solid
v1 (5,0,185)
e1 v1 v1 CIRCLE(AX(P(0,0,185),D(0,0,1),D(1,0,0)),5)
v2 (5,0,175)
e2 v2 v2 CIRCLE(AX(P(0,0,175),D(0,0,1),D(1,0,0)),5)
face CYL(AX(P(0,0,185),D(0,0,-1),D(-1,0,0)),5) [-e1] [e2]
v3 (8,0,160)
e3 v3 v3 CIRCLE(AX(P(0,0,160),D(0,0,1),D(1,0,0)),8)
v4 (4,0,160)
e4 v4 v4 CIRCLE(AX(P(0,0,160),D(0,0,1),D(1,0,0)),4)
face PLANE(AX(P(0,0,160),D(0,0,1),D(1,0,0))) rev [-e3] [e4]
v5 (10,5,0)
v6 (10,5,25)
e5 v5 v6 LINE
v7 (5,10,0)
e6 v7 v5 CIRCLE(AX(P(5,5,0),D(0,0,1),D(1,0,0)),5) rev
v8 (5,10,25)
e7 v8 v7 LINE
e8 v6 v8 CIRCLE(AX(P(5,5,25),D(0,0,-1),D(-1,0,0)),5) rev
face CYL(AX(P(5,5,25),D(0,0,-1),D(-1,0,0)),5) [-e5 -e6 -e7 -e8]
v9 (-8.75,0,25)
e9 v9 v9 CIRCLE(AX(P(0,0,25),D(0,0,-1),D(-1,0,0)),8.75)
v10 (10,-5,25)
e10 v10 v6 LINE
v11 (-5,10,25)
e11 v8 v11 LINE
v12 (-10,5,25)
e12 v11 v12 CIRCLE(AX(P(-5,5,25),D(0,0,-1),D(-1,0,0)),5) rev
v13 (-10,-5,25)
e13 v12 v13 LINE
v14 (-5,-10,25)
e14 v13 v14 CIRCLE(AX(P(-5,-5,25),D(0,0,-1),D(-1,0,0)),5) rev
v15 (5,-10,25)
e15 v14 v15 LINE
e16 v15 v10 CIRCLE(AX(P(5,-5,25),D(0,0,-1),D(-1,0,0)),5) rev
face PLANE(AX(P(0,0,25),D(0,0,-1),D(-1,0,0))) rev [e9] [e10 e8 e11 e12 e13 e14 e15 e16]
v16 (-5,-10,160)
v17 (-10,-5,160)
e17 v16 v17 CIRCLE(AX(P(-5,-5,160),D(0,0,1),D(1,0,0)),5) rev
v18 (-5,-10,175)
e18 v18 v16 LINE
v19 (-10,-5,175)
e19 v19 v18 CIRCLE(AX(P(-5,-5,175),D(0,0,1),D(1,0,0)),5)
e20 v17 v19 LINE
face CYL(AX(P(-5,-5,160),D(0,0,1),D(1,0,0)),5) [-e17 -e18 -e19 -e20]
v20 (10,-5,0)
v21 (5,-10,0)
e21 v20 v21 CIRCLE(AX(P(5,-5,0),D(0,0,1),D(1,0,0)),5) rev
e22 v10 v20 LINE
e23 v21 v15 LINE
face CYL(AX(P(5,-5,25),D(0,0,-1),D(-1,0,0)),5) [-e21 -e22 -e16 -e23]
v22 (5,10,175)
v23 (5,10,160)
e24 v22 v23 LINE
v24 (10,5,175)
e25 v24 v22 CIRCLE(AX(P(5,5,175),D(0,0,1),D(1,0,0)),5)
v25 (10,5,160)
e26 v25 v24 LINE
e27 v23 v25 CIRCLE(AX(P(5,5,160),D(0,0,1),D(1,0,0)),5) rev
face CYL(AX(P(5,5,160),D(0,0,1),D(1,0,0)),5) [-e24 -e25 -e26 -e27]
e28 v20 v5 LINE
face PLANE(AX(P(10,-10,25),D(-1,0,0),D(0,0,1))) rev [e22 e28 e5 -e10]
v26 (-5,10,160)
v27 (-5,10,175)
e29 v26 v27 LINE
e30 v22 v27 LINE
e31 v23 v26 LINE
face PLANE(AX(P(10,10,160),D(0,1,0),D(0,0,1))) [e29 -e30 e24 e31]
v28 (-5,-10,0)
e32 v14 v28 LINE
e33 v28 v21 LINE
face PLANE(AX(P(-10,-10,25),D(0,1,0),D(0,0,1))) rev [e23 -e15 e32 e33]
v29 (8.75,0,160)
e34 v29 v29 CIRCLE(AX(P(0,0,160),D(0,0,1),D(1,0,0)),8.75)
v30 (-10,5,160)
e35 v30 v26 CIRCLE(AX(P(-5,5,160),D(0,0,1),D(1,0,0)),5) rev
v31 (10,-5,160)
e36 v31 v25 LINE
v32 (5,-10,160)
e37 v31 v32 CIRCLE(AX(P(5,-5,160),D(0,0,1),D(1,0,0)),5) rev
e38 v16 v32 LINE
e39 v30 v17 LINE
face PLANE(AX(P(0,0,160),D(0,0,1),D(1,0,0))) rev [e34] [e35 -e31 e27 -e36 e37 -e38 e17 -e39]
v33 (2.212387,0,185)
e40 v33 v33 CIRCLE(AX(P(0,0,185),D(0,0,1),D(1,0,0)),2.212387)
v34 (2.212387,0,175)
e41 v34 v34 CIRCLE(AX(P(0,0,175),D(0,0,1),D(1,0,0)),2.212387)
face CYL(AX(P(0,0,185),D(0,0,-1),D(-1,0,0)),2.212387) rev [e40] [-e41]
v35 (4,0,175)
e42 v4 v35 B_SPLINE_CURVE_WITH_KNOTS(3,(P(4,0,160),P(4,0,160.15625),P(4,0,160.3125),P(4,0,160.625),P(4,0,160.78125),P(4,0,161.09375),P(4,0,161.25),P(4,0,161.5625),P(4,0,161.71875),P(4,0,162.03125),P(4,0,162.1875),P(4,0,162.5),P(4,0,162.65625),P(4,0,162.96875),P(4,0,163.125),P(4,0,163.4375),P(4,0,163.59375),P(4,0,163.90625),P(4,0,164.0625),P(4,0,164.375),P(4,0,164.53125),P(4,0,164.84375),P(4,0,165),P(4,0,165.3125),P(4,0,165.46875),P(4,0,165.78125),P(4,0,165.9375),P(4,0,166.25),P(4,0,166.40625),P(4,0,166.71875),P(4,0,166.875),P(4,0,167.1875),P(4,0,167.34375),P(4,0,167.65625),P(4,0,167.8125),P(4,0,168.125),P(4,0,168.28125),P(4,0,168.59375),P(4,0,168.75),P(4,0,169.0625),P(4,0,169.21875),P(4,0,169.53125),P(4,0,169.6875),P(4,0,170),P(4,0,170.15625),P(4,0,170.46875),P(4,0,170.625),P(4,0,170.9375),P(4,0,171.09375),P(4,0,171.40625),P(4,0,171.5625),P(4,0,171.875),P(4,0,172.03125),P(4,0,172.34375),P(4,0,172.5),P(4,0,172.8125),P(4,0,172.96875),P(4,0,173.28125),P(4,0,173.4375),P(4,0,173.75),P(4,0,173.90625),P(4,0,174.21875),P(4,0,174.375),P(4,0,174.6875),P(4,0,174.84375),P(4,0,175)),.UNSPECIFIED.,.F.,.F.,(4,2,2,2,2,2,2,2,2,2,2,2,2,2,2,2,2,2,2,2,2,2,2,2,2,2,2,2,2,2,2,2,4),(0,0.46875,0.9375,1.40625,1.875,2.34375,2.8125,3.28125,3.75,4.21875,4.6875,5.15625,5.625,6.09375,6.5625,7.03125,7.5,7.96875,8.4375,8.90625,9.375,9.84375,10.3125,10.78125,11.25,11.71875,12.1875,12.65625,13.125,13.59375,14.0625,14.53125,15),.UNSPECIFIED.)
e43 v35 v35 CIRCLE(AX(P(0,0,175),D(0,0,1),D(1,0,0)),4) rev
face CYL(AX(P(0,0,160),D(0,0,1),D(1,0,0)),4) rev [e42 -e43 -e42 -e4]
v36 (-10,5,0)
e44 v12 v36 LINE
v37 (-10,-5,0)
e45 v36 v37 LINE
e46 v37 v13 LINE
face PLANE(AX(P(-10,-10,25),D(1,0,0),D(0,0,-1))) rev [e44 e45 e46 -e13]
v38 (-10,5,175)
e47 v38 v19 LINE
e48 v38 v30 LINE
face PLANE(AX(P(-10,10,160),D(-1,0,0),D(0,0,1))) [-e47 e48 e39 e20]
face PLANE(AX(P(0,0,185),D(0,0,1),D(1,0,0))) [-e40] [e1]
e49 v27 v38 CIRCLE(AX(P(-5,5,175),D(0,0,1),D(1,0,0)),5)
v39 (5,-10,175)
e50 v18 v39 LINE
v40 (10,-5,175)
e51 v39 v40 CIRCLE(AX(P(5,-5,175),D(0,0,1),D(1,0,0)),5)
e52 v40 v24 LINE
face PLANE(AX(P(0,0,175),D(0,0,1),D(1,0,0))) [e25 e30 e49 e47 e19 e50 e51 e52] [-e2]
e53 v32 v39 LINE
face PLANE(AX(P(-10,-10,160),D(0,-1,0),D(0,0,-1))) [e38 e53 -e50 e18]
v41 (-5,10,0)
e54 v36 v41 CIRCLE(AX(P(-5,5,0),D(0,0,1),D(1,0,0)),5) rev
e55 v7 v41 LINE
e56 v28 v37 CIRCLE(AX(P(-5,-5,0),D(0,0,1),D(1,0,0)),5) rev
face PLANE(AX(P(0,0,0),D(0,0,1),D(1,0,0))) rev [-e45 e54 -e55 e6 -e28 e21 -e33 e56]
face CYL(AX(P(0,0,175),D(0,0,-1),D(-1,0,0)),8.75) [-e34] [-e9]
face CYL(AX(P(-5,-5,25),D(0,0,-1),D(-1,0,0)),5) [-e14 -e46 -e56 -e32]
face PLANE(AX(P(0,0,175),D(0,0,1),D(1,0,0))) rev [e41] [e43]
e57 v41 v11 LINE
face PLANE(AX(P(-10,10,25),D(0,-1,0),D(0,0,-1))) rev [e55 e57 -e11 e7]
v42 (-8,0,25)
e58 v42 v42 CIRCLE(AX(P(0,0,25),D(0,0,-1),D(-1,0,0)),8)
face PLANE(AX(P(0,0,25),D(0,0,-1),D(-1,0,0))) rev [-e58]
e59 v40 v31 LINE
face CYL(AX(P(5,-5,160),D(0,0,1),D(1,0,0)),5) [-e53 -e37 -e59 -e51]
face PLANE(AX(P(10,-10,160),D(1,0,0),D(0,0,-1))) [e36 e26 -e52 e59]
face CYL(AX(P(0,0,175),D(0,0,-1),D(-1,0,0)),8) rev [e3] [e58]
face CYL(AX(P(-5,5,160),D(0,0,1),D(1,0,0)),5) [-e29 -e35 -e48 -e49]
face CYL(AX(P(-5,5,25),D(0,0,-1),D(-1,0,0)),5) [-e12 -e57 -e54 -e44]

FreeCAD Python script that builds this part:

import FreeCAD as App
import Part
import Sketcher


def edges_at(feature, points):
    """Names of the edges that pass closest to the given points."""
    edges = feature.Shape.Edges
    near = lambda p: min(range(len(edges)), key=lambda i: edges[i].distToShape(Part.Vertex(*p))[0])
    return sorted({f"Edge{near(p) + 1}" for p in points})

doc = App.newDocument("Part")
body = doc.addObject("PartDesign::Body", "Body")

sketch1 = body.newObject("Sketcher::SketchObject", "Sketch")
sketch1.AttachmentSupport = (doc.getObject("XY_Plane"), [""])
sketch1.MapMode = "FlatFace"
sketch1.addGeometry(Part.Circle(App.Vector(0, 0, 0), App.Vector(0, 0, 1), 9), False)
sketch1.addGeometry(Part.Circle(App.Vector(0, 0, 0), App.Vector(0, 0, 1), 8), False)
sketch1.addConstraint(Sketcher.Constraint("Coincident", 0, 3, -1, 1))
sketch1.addConstraint(Sketcher.Constraint("Coincident", 1, 3, -1, 1))
sketch1.addConstraint(Sketcher.Constraint("Diameter", 1, 16.0))
sketch1.addConstraint(Sketcher.Constraint("Diameter", 0, 17.5))
pad1 = body.newObject("PartDesign::Pad", "Pad")
pad1.Profile = sketch1
pad1.Length = 175

sketch2 = body.newObject("Sketcher::SketchObject", "Sketch001")
sketch2.AttachmentSupport = (doc.getObject("XY_Plane"), [""])
sketch2.MapMode = "FlatFace"
sketch2.addGeometry(Part.LineSegment(App.Vector(-10, 10, 0), App.Vector(-10, -10, 0)), False)
sketch2.addGeometry(Part.LineSegment(App.Vector(-10, -10, 0), App.Vector(10, -10, 0)), False)
sketch2.addGeometry(Part.LineSegment(App.Vector(10, -10, 0), App.Vector(10, 10, 0)), False)
sketch2.addGeometry(Part.LineSegment(App.Vector(10, 10, 0), App.Vector(-10, 10, 0)), False)
sketch2.addConstraint(Sketcher.Constraint("Coincident", 0, 2, 1, 1))
sketch2.addConstraint(Sketcher.Constraint("Coincident", 1, 2, 2, 1))
sketch2.addConstraint(Sketcher.Constraint("Coincident", 2, 2, 3, 1))
sketch2.addConstraint(Sketcher.Constraint("Coincident", 3, 2, 0, 1))
sketch2.addConstraint(Sketcher.Constraint("Vertical", 0))
sketch2.addConstraint(Sketcher.Constraint("Horizontal", 1))
sketch2.addConstraint(Sketcher.Constraint("Vertical", 2))
sketch2.addConstraint(Sketcher.Constraint("Horizontal", 3))
sketch2.addConstraint(Sketcher.Constraint("Symmetric", 0, 2, 2, 2, -1, 1))
sketch2.addConstraint(Sketcher.Constraint("Equal", 3, 0))
sketch2.addConstraint(Sketcher.Constraint("DistanceX", 1, 1, 1, 2, 20.0))
pad2 = body.newObject("PartDesign::Pad", "Pad001")
pad2.Profile = sketch2
pad2.Length = 25

sketch3 = body.newObject("Sketcher::SketchObject", "Sketch002")
sketch3.AttachmentSupport = (doc.getObject("XY_Plane"), [""])
sketch3.MapMode = "FlatFace"
sketch3.AttachmentOffset = App.Placement(App.Vector(0, 0, 175), App.Rotation())
sketch3.addGeometry(Part.LineSegment(App.Vector(-10, 10, 0), App.Vector(-10, -10, 0)), False)
sketch3.addGeometry(Part.LineSegment(App.Vector(-10, -10, 0), App.Vector(10, -10, 0)), False)
sketch3.addGeometry(Part.LineSegment(App.Vector(10, -10, 0), App.Vector(10, 10, 0)), False)
sketch3.addGeometry(Part.LineSegment(App.Vector(10, 10, 0), App.Vector(-10, 10, 0)), False)
sketch3.addGeometry(Part.Circle(App.Vector(0, 0, 0), App.Vector(0, 0, 1), 4), False)
sketch3.addConstraint(Sketcher.Constraint("Coincident", 0, 2, 1, 1))
sketch3.addConstraint(Sketcher.Constraint("Coincident", 1, 2, 2, 1))
sketch3.addConstraint(Sketcher.Constraint("Coincident", 2, 2, 3, 1))
sketch3.addConstraint(Sketcher.Constraint("Coincident", 3, 2, 0, 1))
sketch3.addConstraint(Sketcher.Constraint("Vertical", 0))
sketch3.addConstraint(Sketcher.Constraint("Horizontal", 1))
sketch3.addConstraint(Sketcher.Constraint("Vertical", 2))
sketch3.addConstraint(Sketcher.Constraint("Horizontal", 3))
sketch3.addConstraint(Sketcher.Constraint("Coincident", 4, 3, -1, 1))
sketch3.addConstraint(Sketcher.Constraint("Symmetric", 0, 2, 2, 2, -1, 1))
sketch3.addConstraint(Sketcher.Constraint("Equal", 3, 0))
sketch3.addConstraint(Sketcher.Constraint("Diameter", 4, 8.0))
sketch3.addConstraint(Sketcher.Constraint("DistanceX", 1, 1, 1, 2, 20.0))
pad3 = body.newObject("PartDesign::Pad", "Pad002")
pad3.Profile = sketch3
pad3.Length = 15
pad3.Reversed = True
doc.recompute()

fillet = body.newObject("PartDesign::Fillet", "Fillet")
fillet.Base = (pad3, edges_at(pad3, [
    (10, -10, 12.5),
    (10, 10, 12.5),
    (-10, 10, 12.5),
    (-10, -10, 12.5),
    (10, -10, 167.5),
    (-10, -10, 167.5),
    (-10, 10, 167.5),
    (10, 10, 167.5),
]))
fillet.Radius = 5

sketch4 = body.newObject("Sketcher::SketchObject", "Sketch003")
sketch4.AttachmentSupport = (doc.getObject("XY_Plane"), [""])
sketch4.MapMode = "FlatFace"
sketch4.AttachmentOffset = App.Placement(App.Vector(0, 0, 175), App.Rotation())
sketch4.addGeometry(Part.Circle(App.Vector(0, 0, 0), App.Vector(0, 0, 1), 5), False)
sketch4.addGeometry(Part.Circle(App.Vector(0, 0, 0), App.Vector(0, 0, 1), 2.2), False)
sketch4.addConstraint(Sketcher.Constraint("Coincident", 0, 3, -1, 1))
sketch4.addConstraint(Sketcher.Constraint("Coincident", 1, 3, -1, 1))
sketch4.addConstraint(Sketcher.Constraint("Diameter", 0, 10.0))
sketch4.addConstraint(Sketcher.Constraint("Diameter", 1, 4.424775))
pad4 = body.newObject("PartDesign::Pad", "Pad003")
pad4.Profile = sketch4
pad4.Length = 10

doc.recompute()
